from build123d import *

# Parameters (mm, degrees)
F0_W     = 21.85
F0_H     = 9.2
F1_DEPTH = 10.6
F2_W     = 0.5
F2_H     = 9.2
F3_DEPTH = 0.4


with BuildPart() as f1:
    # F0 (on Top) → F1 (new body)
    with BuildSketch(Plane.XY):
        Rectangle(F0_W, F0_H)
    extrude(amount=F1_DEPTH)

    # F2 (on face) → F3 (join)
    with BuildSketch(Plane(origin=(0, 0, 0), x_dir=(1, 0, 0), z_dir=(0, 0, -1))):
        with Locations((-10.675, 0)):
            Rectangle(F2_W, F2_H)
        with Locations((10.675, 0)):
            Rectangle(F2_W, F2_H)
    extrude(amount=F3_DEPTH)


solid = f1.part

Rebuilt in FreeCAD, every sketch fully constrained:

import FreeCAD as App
import Part
import Sketcher
from FreeCAD import Vector


def add_polygon(sketch, points):
    """Adds a closed chain of lines whose ends are joined by coincident constraints."""
    first, n = sketch.GeometryCount, len(points)
    for a, b in zip(points, points[1:] + points[:1]):
        sketch.addGeometry(Part.LineSegment(App.Vector(*a, 0), App.Vector(*b, 0)), False)
    for i in range(n):
        sketch.addConstraint(Sketcher.Constraint("Coincident", first + i, 2, first + (i + 1) % n, 1))

doc = App.newDocument("Part")
body = doc.addObject("PartDesign::Body", "Body")

sketch1 = doc.addObject("Sketcher::SketchObject", "Sketch")
body.addObject(sketch1)
sketch1.AttachmentSupport = (doc.XY_Plane, [""])
sketch1.MapMode = "FlatFace"
add_polygon(sketch1, [(-10.925, 4.6), (-10.925, -4.6), (10.925, -4.6), (10.925, 4.6)])
sketch1.addConstraint([
    Sketcher.Constraint("Vertical", 0),
    Sketcher.Constraint("Horizontal", 1),
    Sketcher.Constraint("Vertical", 2),
    Sketcher.Constraint("Horizontal", 3),
    Sketcher.Constraint("Symmetric", 0, 2, 2, 2, -1, 1),
    Sketcher.Constraint("DistanceY", 0, 2, 0, 1, 9.2),
    Sketcher.Constraint("DistanceX", 1, 1, 1, 2, 21.85),
])
pad1 = doc.addObject("PartDesign::Pad", "Pad")
body.addObject(pad1)
pad1.Profile = sketch1
pad1.Length = 10.6

sketch2 = doc.addObject("Sketcher::SketchObject", "Sketch001")
body.addObject(sketch2)
sketch2.AttachmentSupport = (doc.XY_Plane, [""])
sketch2.MapMode = "FlatFace"
add_polygon(sketch2, [(-10.925, -4.6), (-10.925, 4.6), (-10.425, 4.6), (-10.425, -4.6)])
add_polygon(sketch2, [(10.425, -4.6), (10.425, 4.6), (10.925, 4.6), (10.925, -4.6)])
sketch2.addConstraint([
    Sketcher.Constraint("Vertical", 0),
    Sketcher.Constraint("Horizontal", 1),
    Sketcher.Constraint("Vertical", 2),
    Sketcher.Constraint("Horizontal", 3),
    Sketcher.Constraint("Vertical", 4),
    Sketcher.Constraint("Horizontal", 5),
    Sketcher.Constraint("Vertical", 6),
    Sketcher.Constraint("Horizontal", 7),
    Sketcher.Constraint("Symmetric", 2, 2, 4, 2, -1, 1),
    Sketcher.Constraint("Symmetric", 0, 2, 6, 2, -1, 1),
    Sketcher.Constraint("Horizontal", 1, 2, 4, 2),
    Sketcher.Constraint("DistanceX", 1, 1, 1, 2, 0.5),
    Sketcher.Constraint("DistanceY", 0, 1, 0, 2, 9.2),
    Sketcher.Constraint("DistanceX", 1, 2, 4, 2, 20.85),
])
pad2 = doc.addObject("PartDesign::Pad", "Pad001")
body.addObject(pad2)
pad2.Profile = sketch2
pad2.Length = 0.4
pad2.Reversed = True

doc.recompute()
